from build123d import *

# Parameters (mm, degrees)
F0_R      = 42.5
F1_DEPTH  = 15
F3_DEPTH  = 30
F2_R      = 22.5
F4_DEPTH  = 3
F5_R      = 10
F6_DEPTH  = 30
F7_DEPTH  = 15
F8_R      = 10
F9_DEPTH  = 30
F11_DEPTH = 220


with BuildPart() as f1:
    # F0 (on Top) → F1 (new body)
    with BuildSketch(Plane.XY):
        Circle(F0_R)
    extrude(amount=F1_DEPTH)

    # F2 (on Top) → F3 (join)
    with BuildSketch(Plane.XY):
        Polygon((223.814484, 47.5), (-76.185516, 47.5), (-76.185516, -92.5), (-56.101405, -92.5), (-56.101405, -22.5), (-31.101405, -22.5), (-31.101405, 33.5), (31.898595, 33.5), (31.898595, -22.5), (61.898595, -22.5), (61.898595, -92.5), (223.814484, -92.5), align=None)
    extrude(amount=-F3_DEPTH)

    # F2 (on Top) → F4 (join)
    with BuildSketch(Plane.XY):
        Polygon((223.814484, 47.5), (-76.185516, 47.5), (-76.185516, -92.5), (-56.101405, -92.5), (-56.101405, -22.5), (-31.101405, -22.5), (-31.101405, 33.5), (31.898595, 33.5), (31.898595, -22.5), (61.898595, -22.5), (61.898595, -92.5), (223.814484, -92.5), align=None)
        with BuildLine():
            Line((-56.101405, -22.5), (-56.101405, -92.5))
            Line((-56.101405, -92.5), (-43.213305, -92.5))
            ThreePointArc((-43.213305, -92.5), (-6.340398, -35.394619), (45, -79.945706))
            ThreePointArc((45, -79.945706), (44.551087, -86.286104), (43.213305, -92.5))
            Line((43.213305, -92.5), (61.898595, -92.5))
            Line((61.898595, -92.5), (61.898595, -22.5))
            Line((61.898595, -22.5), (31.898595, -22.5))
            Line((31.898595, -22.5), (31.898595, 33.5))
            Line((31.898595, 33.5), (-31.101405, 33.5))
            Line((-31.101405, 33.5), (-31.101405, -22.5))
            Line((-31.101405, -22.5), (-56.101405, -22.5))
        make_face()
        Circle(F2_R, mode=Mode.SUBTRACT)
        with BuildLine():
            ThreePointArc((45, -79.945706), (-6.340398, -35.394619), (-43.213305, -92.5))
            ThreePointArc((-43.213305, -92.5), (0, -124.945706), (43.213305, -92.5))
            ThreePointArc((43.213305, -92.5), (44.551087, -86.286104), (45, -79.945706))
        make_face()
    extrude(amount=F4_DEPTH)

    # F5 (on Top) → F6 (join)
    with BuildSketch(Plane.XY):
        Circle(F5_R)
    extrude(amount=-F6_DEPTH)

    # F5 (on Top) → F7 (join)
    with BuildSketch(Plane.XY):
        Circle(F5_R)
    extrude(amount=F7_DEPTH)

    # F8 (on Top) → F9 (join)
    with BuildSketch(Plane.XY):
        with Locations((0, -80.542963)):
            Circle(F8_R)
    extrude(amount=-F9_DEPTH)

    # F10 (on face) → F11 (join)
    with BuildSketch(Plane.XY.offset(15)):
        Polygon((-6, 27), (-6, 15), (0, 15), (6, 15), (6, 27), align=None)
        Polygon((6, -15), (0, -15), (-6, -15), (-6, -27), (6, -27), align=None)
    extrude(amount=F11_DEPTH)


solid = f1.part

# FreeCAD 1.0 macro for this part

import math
import FreeCAD as App
import Part
import Sketcher


def add_polygon(sketch, points):
    """Adds a closed chain of lines whose ends are joined by coincident constraints."""
    first, n = sketch.GeometryCount, len(points)
    for a, b in zip(points, points[1:] + points[:1]):
        sketch.addGeometry(Part.LineSegment(App.Vector(*a, 0), App.Vector(*b, 0)), False)
    for i in range(n):
        sketch.addConstraint(Sketcher.Constraint("Coincident", first + i, 2, first + (i + 1) % n, 1))

doc = App.newDocument("Part")
body = doc.addObject("PartDesign::Body", "Body")

# Sketch on XY plane
sketch1 = body.newObject("Sketcher::SketchObject", "Sketch")
sketch1.AttachmentSupport = (doc.getObject("XY_Plane"), [""])
sketch1.MapMode = "FlatFace"
sketch1.addGeometry(Part.Circle(App.Vector(0, 0, 0), App.Vector(0, 0, 1), 42), False)
sketch1.addConstraint([
    Sketcher.Constraint("Coincident", 0, 3, -1, 1),
    Sketcher.Constraint("Diameter", 0, 85.0),
])
pad1 = body.newObject("PartDesign::Pad", "Pad")
pad1.Profile = sketch1
pad1.Length = 15

# Sketch on XY plane
sketch2 = body.newObject("Sketcher::SketchObject", "Sketch001")
sketch2.AttachmentSupport = (doc.getObject("XY_Plane"), [""])
sketch2.MapMode = "FlatFace"
add_polygon(sketch2, [(224, 48), (-76, 48), (-76, -92), (-56, -92), (-56, -22), (-31, -22), (-31, 34), (32, 34), (32, -22), (62, -22), (62, -92), (224, -92)])  # lines 0-11
sketch2.addConstraint([
    Sketcher.Constraint("Horizontal", 0),
    Sketcher.Constraint("Vertical", 1),
    Sketcher.Constraint("Horizontal", 2),
    Sketcher.Constraint("Vertical", 3),
    Sketcher.Constraint("Horizontal", 4),
    Sketcher.Constraint("Vertical", 5),
    Sketcher.Constraint("Horizontal", 6),
    Sketcher.Constraint("Vertical", 7),
    Sketcher.Constraint("Horizontal", 8),
    Sketcher.Constraint("Vertical", 9),
    Sketcher.Constraint("Horizontal", 10),
    Sketcher.Constraint("Vertical", 11),
    Sketcher.Constraint("Horizontal", 4, 2, 7, 2),
    Sketcher.Constraint("Horizontal", 2, 2, 9, 2),
    Sketcher.Constraint("DistanceX", 0, 2, 0, 1, 300.0),
    Sketcher.Constraint("DistanceX", 4, 1, 4, 2, 25.0),
    Sketcher.Constraint("DistanceX", 6, 1, 6, 2, 63.0),
    Sketcher.Constraint("DistanceX", 8, 1, 8, 2, 30.0),
    Sketcher.Constraint("DistanceY", 1, 2, 1, 1, 140.0),
    Sketcher.Constraint("DistanceY", 3, 1, 3, 2, 70.0),
    Sketcher.Constraint("DistanceY", 5, 1, 5, 2, 56.0),
    Sketcher.Constraint("DistanceY", -1, 1, 0, 2, 47.5),
    Sketcher.Constraint("DistanceX", 2, 1, 2, 2, 20.084111),
    Sketcher.Constraint("DistanceX", 0, 2, -1, 1, 76.185516),
])
pad2 = body.newObject("PartDesign::Pad", "Pad001")
pad2.Profile = sketch2
pad2.Length = 30
pad2.Reversed = True

# Sketch on XY plane
sketch3 = body.newObject("Sketcher::SketchObject", "Sketch002")
sketch3.AttachmentSupport = (doc.getObject("XY_Plane"), [""])
sketch3.MapMode = "FlatFace"
sketch3.addGeometry([
    Part.LineSegment(App.Vector(224, 48, 0), App.Vector(-76, 48, 0)),  # 0
    Part.LineSegment(App.Vector(-76, 48, 0), App.Vector(-76, -92, 0)),  # 1
    Part.LineSegment(App.Vector(-76, -92, 0), App.Vector(-43, -92, 0)),  # 2
    Part.ArcOfCircle(Part.Circle(App.Vector(0, -80, 0), App.Vector(0, 0, 1), 45), math.radians(-164), math.radians(-16)),  # 3
    Part.LineSegment(App.Vector(43, -92, 0), App.Vector(224, -92, 0)),  # 4
    Part.LineSegment(App.Vector(224, -92, 0), App.Vector(224, 48, 0)),  # 5
    Part.Circle(App.Vector(0, 0, 0), App.Vector(0, 0, 1), 22),  # 6
], False)
sketch3.addConstraint([
    Sketcher.Constraint("Coincident", 0, 2, 1, 1),
    Sketcher.Constraint("Coincident", 1, 2, 2, 1),
    Sketcher.Constraint("Coincident", 2, 2, 3, 1),
    Sketcher.Constraint("Coincident", 3, 2, 4, 1),
    Sketcher.Constraint("Coincident", 4, 2, 5, 1),
    Sketcher.Constraint("Coincident", 5, 2, 0, 1),
    Sketcher.Constraint("Horizontal", 0),
    Sketcher.Constraint("Vertical", 1),
    Sketcher.Constraint("Horizontal", 2),
    Sketcher.Constraint("Horizontal", 4),
    Sketcher.Constraint("Vertical", 5),
    Sketcher.Constraint("Coincident", 6, 3, -1, 1),
    Sketcher.Constraint("Symmetric", 2, 2, 3, 2, -2),
    Sketcher.Constraint("Diameter", 6, 45.0),
    Sketcher.Constraint("Radius", 3, 45.0),
    Sketcher.Constraint("DistanceX", 0, 2, 0, 1, 300.0),
    Sketcher.Constraint("DistanceY", 1, 2, 1, 1, 140.0),
    Sketcher.Constraint("DistanceY", -1, 1, 0, 2, 47.5),
    Sketcher.Constraint("DistanceX", 2, 1, 2, 2, 32.972211),
    Sketcher.Constraint("DistanceX", 4, 1, 4, 2, 180.601179),
])
pad3 = body.newObject("PartDesign::Pad", "Pad002")
pad3.Profile = sketch3
pad3.Length = 3

# Sketch on XY plane
sketch4 = body.newObject("Sketcher::SketchObject", "Sketch003")
sketch4.AttachmentSupport = (doc.getObject("XY_Plane"), [""])
sketch4.MapMode = "FlatFace"
sketch4.addGeometry(Part.Circle(App.Vector(0, 0, 0), App.Vector(0, 0, 1), 10), False)
sketch4.addConstraint([
    Sketcher.Constraint("Coincident", 0, 3, -1, 1),
    Sketcher.Constraint("Diameter", 0, 20.0),
])
pad4 = body.newObject("PartDesign::Pad", "Pad003")
pad4.Profile = sketch4
pad4.Length = 30
pad4.Reversed = True

# Sketch on XY plane
sketch5 = body.newObject("Sketcher::SketchObject", "Sketch004")
sketch5.AttachmentSupport = (doc.getObject("XY_Plane"), [""])
sketch5.MapMode = "FlatFace"
sketch5.addGeometry(Part.Circle(App.Vector(0, 0, 0), App.Vector(0, 0, 1), 10), False)
sketch5.addConstraint([
    Sketcher.Constraint("Coincident", 0, 3, -1, 1),
    Sketcher.Constraint("Diameter", 0, 20.0),
])
pad5 = body.newObject("PartDesign::Pad", "Pad004")
pad5.Profile = sketch5
pad5.Length = 15

# Sketch on XY plane
sketch6 = body.newObject("Sketcher::SketchObject", "Sketch005")
sketch6.AttachmentSupport = (doc.getObject("XY_Plane"), [""])
sketch6.MapMode = "FlatFace"
sketch6.addGeometry(Part.Circle(App.Vector(0, -81, 0), App.Vector(0, 0, 1), 10), False)
sketch6.addConstraint([
    Sketcher.Constraint("PointOnObject", 0, 3, -2),
    Sketcher.Constraint("Diameter", 0, 20.0),
    Sketcher.Constraint("DistanceY", 0, 3, -1, 1, 80.542963),
])
pad6 = body.newObject("PartDesign::Pad", "Pad005")
pad6.Profile = sketch6
pad6.Length = 30
pad6.Reversed = True

# Sketch on XY plane
sketch7 = body.newObject("Sketcher::SketchObject", "Sketch006")
sketch7.AttachmentSupport = (doc.getObject("XY_Plane"), [""])
sketch7.MapMode = "FlatFace"
sketch7.AttachmentOffset = App.Placement(App.Vector(0, 0, 15), App.Rotation())
add_polygon(sketch7, [(-6, 27), (-6, 15), (6, 15), (6, 27)])  # lines 0-3
add_polygon(sketch7, [(6, -15), (-6, -15), (-6, -27), (6, -27)])  # lines 4-7
sketch7.addConstraint([
    Sketcher.Constraint("Vertical", 0),
    Sketcher.Constraint("Horizontal", 1),
    Sketcher.Constraint("Vertical", 2),
    Sketcher.Constraint("Horizontal", 3),
    Sketcher.Constraint("Horizontal", 4),
    Sketcher.Constraint("Vertical", 5),
    Sketcher.Constraint("Horizontal", 6),
    Sketcher.Constraint("Vertical", 7),
    Sketcher.Constraint("Symmetric", 1, 2, 4, 2, -1, 1),
    Sketcher.Constraint("Symmetric", 3, 2, 6, 2, -1, 1),
    Sketcher.Constraint("Vertical", 3, 2, 4, 2),
    Sketcher.Constraint("Equal", 6, 0),
    Sketcher.Constraint("DistanceX", 1, 1, 1, 2, 12.0),
    Sketcher.Constraint("DistanceY", -1, 1, 0, 2, 15.0),
])
pad7 = body.newObject("PartDesign::Pad", "Pad006")
pad7.Profile = sketch7
pad7.Length = 220

doc.recompute()
